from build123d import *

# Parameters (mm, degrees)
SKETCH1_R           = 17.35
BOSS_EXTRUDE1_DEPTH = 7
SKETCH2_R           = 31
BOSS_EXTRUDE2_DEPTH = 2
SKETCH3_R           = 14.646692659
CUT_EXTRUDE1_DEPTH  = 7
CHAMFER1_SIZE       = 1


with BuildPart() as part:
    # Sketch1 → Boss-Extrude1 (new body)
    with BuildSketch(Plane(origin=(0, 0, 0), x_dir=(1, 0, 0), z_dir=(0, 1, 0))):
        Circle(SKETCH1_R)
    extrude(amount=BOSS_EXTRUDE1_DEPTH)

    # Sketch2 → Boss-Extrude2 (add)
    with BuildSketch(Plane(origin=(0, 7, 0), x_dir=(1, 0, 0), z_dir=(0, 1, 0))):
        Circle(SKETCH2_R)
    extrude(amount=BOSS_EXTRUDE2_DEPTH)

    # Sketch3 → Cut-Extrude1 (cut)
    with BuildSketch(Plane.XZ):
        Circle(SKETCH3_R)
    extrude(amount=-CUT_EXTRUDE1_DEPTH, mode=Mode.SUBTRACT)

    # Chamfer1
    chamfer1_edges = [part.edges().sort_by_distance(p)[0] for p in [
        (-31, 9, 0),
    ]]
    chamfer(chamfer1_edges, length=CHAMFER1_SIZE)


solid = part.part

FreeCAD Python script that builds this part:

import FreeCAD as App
import Part
import Sketcher


def edges_at(feature, points):
    """Names of the edges that pass closest to the given points."""
    edges = feature.Shape.Edges
    near = lambda p: min(range(len(edges)), key=lambda i: edges[i].distToShape(Part.Vertex(*p))[0])
    return sorted({f"Edge{near(p) + 1}" for p in points})

doc = App.newDocument("Part")
body = doc.addObject("PartDesign::Body", "Body")

# Sketch on XZ plane
sketch1 = doc.addObject("Sketcher::SketchObject", "Sketch")
body.addObject(sketch1)
sketch1.AttachmentSupport = (doc.XZ_Plane, [""])
sketch1.MapMode = "FlatFace"
sketch1.addGeometry(Part.Circle(App.Vector(0, 0, 0), App.Vector(0, 0, 1), 17), False)
sketch1.addConstraint([
    Sketcher.Constraint("Coincident", 0, 3, -1, 1),
    Sketcher.Constraint("Diameter", 0, 34.7),
])
pad1 = doc.addObject("PartDesign::Pad", "Pad")
body.addObject(pad1)
pad1.Profile = sketch1
pad1.Length = 7
pad1.Reversed = True

# Sketch on XZ plane
sketch2 = doc.addObject("Sketcher::SketchObject", "Sketch001")
body.addObject(sketch2)
sketch2.AttachmentSupport = (doc.XZ_Plane, [""])
sketch2.MapMode = "FlatFace"
sketch2.AttachmentOffset = App.Placement(App.Vector(0, 0, -7), App.Rotation())
sketch2.addGeometry(Part.Circle(App.Vector(0, 0, 0), App.Vector(0, 0, 1), 31), False)
sketch2.addConstraint([
    Sketcher.Constraint("Coincident", 0, 3, -1, 1),
    Sketcher.Constraint("Diameter", 0, 62.0),
])
pad2 = doc.addObject("PartDesign::Pad", "Pad001")
body.addObject(pad2)
pad2.Profile = sketch2
pad2.Length = 2
pad2.Reversed = True

# Sketch on XZ plane
sketch3 = doc.addObject("Sketcher::SketchObject", "Sketch002")
body.addObject(sketch3)
sketch3.AttachmentSupport = (doc.XZ_Plane, [""])
sketch3.MapMode = "FlatFace"
sketch3.addGeometry(Part.Circle(App.Vector(0, 0, 0), App.Vector(0, 0, 1), 15), False)
sketch3.addConstraint([
    Sketcher.Constraint("Coincident", 0, 3, -1, 1),
    Sketcher.Constraint("Diameter", 0, 29.293385),
])
pocket1 = doc.addObject("PartDesign::Pocket", "Pocket")
body.addObject(pocket1)
pocket1.Profile = sketch3
pocket1.Length = 7
doc.recompute()

chamfer = doc.addObject("PartDesign::Chamfer", "Chamfer")
body.addObject(chamfer)
chamfer.Base = (pocket1, edges_at(pocket1, [(-31, 9, 0)]))
chamfer.Size = 1

doc.recompute()
